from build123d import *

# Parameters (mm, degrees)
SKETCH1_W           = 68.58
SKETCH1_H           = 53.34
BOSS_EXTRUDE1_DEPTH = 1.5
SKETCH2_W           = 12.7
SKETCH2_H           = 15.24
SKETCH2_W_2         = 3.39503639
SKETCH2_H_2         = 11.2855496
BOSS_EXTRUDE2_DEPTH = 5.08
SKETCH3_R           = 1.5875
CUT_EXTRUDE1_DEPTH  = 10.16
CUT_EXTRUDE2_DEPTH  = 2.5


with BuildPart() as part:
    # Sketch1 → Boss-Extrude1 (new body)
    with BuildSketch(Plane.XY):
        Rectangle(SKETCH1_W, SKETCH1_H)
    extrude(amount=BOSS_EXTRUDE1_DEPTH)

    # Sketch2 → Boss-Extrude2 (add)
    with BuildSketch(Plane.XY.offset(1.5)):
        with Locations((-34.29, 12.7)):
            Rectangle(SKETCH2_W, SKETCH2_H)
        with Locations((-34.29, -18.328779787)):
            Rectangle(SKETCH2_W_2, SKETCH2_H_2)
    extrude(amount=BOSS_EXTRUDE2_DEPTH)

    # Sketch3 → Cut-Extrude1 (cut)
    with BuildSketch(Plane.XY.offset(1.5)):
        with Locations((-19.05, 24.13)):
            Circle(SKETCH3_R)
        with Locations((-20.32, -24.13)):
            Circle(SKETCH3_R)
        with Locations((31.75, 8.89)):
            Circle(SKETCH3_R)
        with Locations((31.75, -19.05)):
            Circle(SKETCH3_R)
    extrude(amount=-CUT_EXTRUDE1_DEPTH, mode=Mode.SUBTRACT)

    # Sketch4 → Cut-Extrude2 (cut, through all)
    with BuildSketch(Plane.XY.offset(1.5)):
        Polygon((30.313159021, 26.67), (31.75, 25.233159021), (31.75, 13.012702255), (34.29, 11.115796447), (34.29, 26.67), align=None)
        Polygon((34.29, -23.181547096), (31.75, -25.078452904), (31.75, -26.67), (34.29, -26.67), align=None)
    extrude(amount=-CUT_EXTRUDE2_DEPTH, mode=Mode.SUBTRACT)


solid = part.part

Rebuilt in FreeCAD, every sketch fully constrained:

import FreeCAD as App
import Part
import Sketcher
from FreeCAD import Vector
Q = App.Units.Quantity

doc = App.newDocument("Part")
params = doc.addObject("Spreadsheet::Sheet", "Params")
for row, (alias, value) in enumerate([
    ("sketch1_width", "2.7 in"),
    ("sketch1_height", "2.1 in"),
    ("pad1_length", "1.5 mm"),
    ("sketch2_width", "0.5 in"),
    ("sketch2_height", "0.6 in"),
    ("pad2_length", "0.2 in"),
    ("sketch3_diameter", "0.125 in"),
    ("pocket1_length", "0.4 in"),
    ("sketch4_width", "0.1 in"),
    ("sketch4_length", "0.08 in"),
], start=1):
    params.set(f"A{row}", alias)
    params.set(f"B{row}", "=" + value)
    params.setAlias(f"B{row}", alias)

body = doc.addObject("PartDesign::Body", "Body")

# Sketch on XY plane
sketch1 = body.newObject("Sketcher::SketchObject", "Sketch")
sketch1.AttachmentSupport = (doc.getObject("XY_Plane"), [""])
sketch1.MapMode = "FlatFace"
sketch1.addGeometry(Part.LineSegment(Vector(-34, 27, 0), Vector(-34, -27, 0)), False)
sketch1.addGeometry(Part.LineSegment(Vector(-34, -27, 0), Vector(34, -27, 0)), False)
sketch1.addGeometry(Part.LineSegment(Vector(34, -27, 0), Vector(34, 27, 0)), False)
sketch1.addGeometry(Part.LineSegment(Vector(34, 27, 0), Vector(-34, 27, 0)), False)
sketch1.addConstraint(Sketcher.Constraint("Coincident", 0, 2, 1, 1))
sketch1.addConstraint(Sketcher.Constraint("Coincident", 1, 2, 2, 1))
sketch1.addConstraint(Sketcher.Constraint("Coincident", 2, 2, 3, 1))
sketch1.addConstraint(Sketcher.Constraint("Coincident", 3, 2, 0, 1))
sketch1.addConstraint(Sketcher.Constraint("Vertical", 0))
sketch1.addConstraint(Sketcher.Constraint("Horizontal", 1))
sketch1.addConstraint(Sketcher.Constraint("Vertical", 2))
sketch1.addConstraint(Sketcher.Constraint("Horizontal", 3))
sketch1.addConstraint(Sketcher.Constraint("Symmetric", 0, 2, 2, 2, -1, 1))
sketch1.addConstraint(Sketcher.Constraint("DistanceX", 1, 1, 1, 2, Q("2.7 in")))
sketch1.addConstraint(Sketcher.Constraint("DistanceY", 0, 2, 0, 1, Q("2.1 in")))
sketch1.setExpression("Constraints[9]", "Params.sketch1_width")
sketch1.setExpression("Constraints[10]", "Params.sketch1_height")
pad1 = body.newObject("PartDesign::Pad", "Pad")
pad1.Profile = sketch1
pad1.setExpression("Length", "Params.pad1_length")

# Sketch on XY plane
sketch2 = body.newObject("Sketcher::SketchObject", "Sketch001")
sketch2.AttachmentSupport = (doc.getObject("XY_Plane"), [""])
sketch2.MapMode = "FlatFace"
sketch2.AttachmentOffset = App.Placement(Vector(0, 0, 1.5), App.Rotation())
sketch2.addGeometry(Part.LineSegment(Vector(-40.6, 20.3, 0), Vector(-40.6, 5.1, 0)), False)
sketch2.addGeometry(Part.LineSegment(Vector(-40.6, 5.1, 0), Vector(-27.9, 5.1, 0)), False)
sketch2.addGeometry(Part.LineSegment(Vector(-27.9, 5.1, 0), Vector(-27.9, 20.3, 0)), False)
sketch2.addGeometry(Part.LineSegment(Vector(-27.9, 20.3, 0), Vector(-40.6, 20.3, 0)), False)
sketch2.addGeometry(Part.LineSegment(Vector(-36, -12.7, 0), Vector(-36, -24, 0)), False)
sketch2.addGeometry(Part.LineSegment(Vector(-36, -24, 0), Vector(-32.6, -24, 0)), False)
sketch2.addGeometry(Part.LineSegment(Vector(-32.6, -24, 0), Vector(-32.6, -12.7, 0)), False)
sketch2.addGeometry(Part.LineSegment(Vector(-32.6, -12.7, 0), Vector(-36, -12.7, 0)), False)
sketch2.addConstraint(Sketcher.Constraint("Coincident", 0, 2, 1, 1))
sketch2.addConstraint(Sketcher.Constraint("Coincident", 1, 2, 2, 1))
sketch2.addConstraint(Sketcher.Constraint("Coincident", 2, 2, 3, 1))
sketch2.addConstraint(Sketcher.Constraint("Coincident", 3, 2, 0, 1))
sketch2.addConstraint(Sketcher.Constraint("Coincident", 4, 2, 5, 1))
sketch2.addConstraint(Sketcher.Constraint("Coincident", 5, 2, 6, 1))
sketch2.addConstraint(Sketcher.Constraint("Coincident", 6, 2, 7, 1))
sketch2.addConstraint(Sketcher.Constraint("Coincident", 7, 2, 4, 1))
sketch2.addConstraint(Sketcher.Constraint("Vertical", 0))
sketch2.addConstraint(Sketcher.Constraint("Horizontal", 1))
sketch2.addConstraint(Sketcher.Constraint("Vertical", 2))
sketch2.addConstraint(Sketcher.Constraint("Horizontal", 3))
sketch2.addConstraint(Sketcher.Constraint("Vertical", 4))
sketch2.addConstraint(Sketcher.Constraint("Horizontal", 5))
sketch2.addConstraint(Sketcher.Constraint("Vertical", 6))
sketch2.addConstraint(Sketcher.Constraint("Horizontal", 7))
sketch2.addConstraint(Sketcher.Constraint("DistanceX", 1, 1, 1, 2, Q("0.5 in")))
sketch2.addConstraint(Sketcher.Constraint("DistanceY", 0, 2, 0, 1, Q("0.6 in")))
sketch2.addConstraint(Sketcher.Constraint("DistanceX", 0, 2, -1, 1, Q("1.6 in")))
sketch2.addConstraint(Sketcher.Constraint("DistanceY", -1, 1, 0, 2, Q("0.2 in")))
sketch2.addConstraint(Sketcher.Constraint("DistanceY", 4, 2, 4, 1, 11.28555))
sketch2.addConstraint(Sketcher.Constraint("DistanceX", 5, 1, 5, 2, 3.395036))
sketch2.addConstraint(Sketcher.Constraint("DistanceX", 4, 2, -1, 1, 35.987518))
sketch2.addConstraint(Sketcher.Constraint("DistanceY", 4, 2, -1, 1, 23.971555))
sketch2.setExpression("Constraints[16]", "Params.sketch2_width")
sketch2.setExpression("Constraints[17]", "Params.sketch2_height")
pad2 = body.newObject("PartDesign::Pad", "Pad001")
pad2.Profile = sketch2
pad2.setExpression("Length", "Params.pad2_length")

# Sketch on XY plane
sketch3 = body.newObject("Sketcher::SketchObject", "Sketch002")
sketch3.AttachmentSupport = (doc.getObject("XY_Plane"), [""])
sketch3.MapMode = "FlatFace"
sketch3.AttachmentOffset = App.Placement(Vector(0, 0, 1.5), App.Rotation())
sketch3.addGeometry(Part.Circle(Vector(-19.1, 24.1, 0), Vector(0, 0, 1), 1.6), False)
sketch3.addGeometry(Part.Circle(Vector(-20.3, -24.1, 0), Vector(0, 0, 1), 1.6), False)
sketch3.addGeometry(Part.Circle(Vector(31.8, 8.9, 0), Vector(0, 0, 1), 1.6), False)
sketch3.addGeometry(Part.Circle(Vector(31.8, -19.1, 0), Vector(0, 0, 1), 1.6), False)
sketch3.addConstraint(Sketcher.Constraint("Equal", 0, 1))
sketch3.addConstraint(Sketcher.Constraint("Equal", 1, 2))
sketch3.addConstraint(Sketcher.Constraint("Equal", 2, 3))
sketch3.addConstraint(Sketcher.Constraint("Vertical", 2, 3, 3, 3))
sketch3.addConstraint(Sketcher.Constraint("Diameter", 0, Q("0.125 in")))
sketch3.addConstraint(Sketcher.Constraint("DistanceX", 0, 3, 2, 3, Q("2 in")))
sketch3.addConstraint(Sketcher.Constraint("DistanceX", 1, 3, -1, 1, Q("0.8 in")))
sketch3.addConstraint(Sketcher.Constraint("DistanceY", 1, 3, 0, 3, Q("1.9 in")))
sketch3.addConstraint(Sketcher.Constraint("DistanceY", 2, 3, 0, 3, Q("0.6 in")))
sketch3.addConstraint(Sketcher.Constraint("DistanceY", 3, 3, 2, 3, Q("1.1 in")))
sketch3.addConstraint(Sketcher.Constraint("DistanceX", 0, 3, -1, 1, Q("0.75 in")))
sketch3.addConstraint(Sketcher.Constraint("DistanceY", -1, 1, 0, 3, Q("0.95 in")))
sketch3.setExpression("Constraints[4]", "Params.sketch3_diameter")
pocket1 = body.newObject("PartDesign::Pocket", "Pocket")
pocket1.Profile = sketch3
pocket1.setExpression("Length", "Params.pocket1_length")

# Sketch on XY plane
sketch4 = body.newObject("Sketcher::SketchObject", "Sketch003")
sketch4.AttachmentSupport = (doc.getObject("XY_Plane"), [""])
sketch4.MapMode = "FlatFace"
sketch4.AttachmentOffset = App.Placement(Vector(0, 0, 1.5), App.Rotation())
sketch4.addGeometry(Part.LineSegment(Vector(30.3, 26.7, 0), Vector(31.8, 25.2, 0)), False)
sketch4.addGeometry(Part.LineSegment(Vector(31.8, 25.2, 0), Vector(31.8, 13, 0)), False)
sketch4.addGeometry(Part.LineSegment(Vector(31.8, 13, 0), Vector(34.3, 11.1, 0)), False)
sketch4.addGeometry(Part.LineSegment(Vector(34.3, 11.1, 0), Vector(34.3, 26.7, 0)), False)
sketch4.addGeometry(Part.LineSegment(Vector(34.3, 26.7, 0), Vector(30.3, 26.7, 0)), False)
sketch4.addGeometry(Part.LineSegment(Vector(34.3, -23.2, 0), Vector(31.8, -25.1, 0)), False)
sketch4.addGeometry(Part.LineSegment(Vector(31.8, -25.1, 0), Vector(31.8, -26.7, 0)), False)
sketch4.addGeometry(Part.LineSegment(Vector(31.8, -26.7, 0), Vector(34.3, -26.7, 0)), False)
sketch4.addGeometry(Part.LineSegment(Vector(34.3, -26.7, 0), Vector(34.3, -23.2, 0)), False)
sketch4.addConstraint(Sketcher.Constraint("Coincident", 0, 2, 1, 1))
sketch4.addConstraint(Sketcher.Constraint("Coincident", 1, 2, 2, 1))
sketch4.addConstraint(Sketcher.Constraint("Coincident", 2, 2, 3, 1))
sketch4.addConstraint(Sketcher.Constraint("Coincident", 3, 2, 4, 1))
sketch4.addConstraint(Sketcher.Constraint("Coincident", 4, 2, 0, 1))
sketch4.addConstraint(Sketcher.Constraint("Coincident", 5, 2, 6, 1))
sketch4.addConstraint(Sketcher.Constraint("Coincident", 6, 2, 7, 1))
sketch4.addConstraint(Sketcher.Constraint("Coincident", 7, 2, 8, 1))
sketch4.addConstraint(Sketcher.Constraint("Coincident", 8, 2, 5, 1))
sketch4.addConstraint(Sketcher.Constraint("Vertical", 1))
sketch4.addConstraint(Sketcher.Constraint("Vertical", 3))
sketch4.addConstraint(Sketcher.Constraint("Horizontal", 4))
sketch4.addConstraint(Sketcher.Constraint("Vertical", 6))
sketch4.addConstraint(Sketcher.Constraint("Horizontal", 7))
sketch4.addConstraint(Sketcher.Constraint("Vertical", 8))
sketch4.addConstraint(Sketcher.Constraint("Symmetric", 3, 2, 7, 2, -1))
sketch4.addConstraint(Sketcher.Constraint("Vertical", 1, 2, 5, 2))
sketch4.addConstraint(Sketcher.Constraint("Equal", 2, 5))
sketch4.addConstraint(Sketcher.Constraint("DistanceX", 7, 1, 7, 2, Q("0.1 in")))
sketch4.addConstraint(Sketcher.Constraint("Angle", 0, Q("-45 deg")))
sketch4.addConstraint(Sketcher.Constraint("DistanceY", 6, 2, 4, 2, Q("2.1 in")))
sketch4.addConstraint(Sketcher.Constraint("Distance", 0, Q("0.08 in")))
sketch4.addConstraint(Sketcher.Constraint("DistanceX", -1, 1, 0, 2, Q("1.25 in")))
sketch4.addConstraint(Sketcher.Constraint("Distance", 2, 3.17015))
sketch4.addConstraint(Sketcher.Constraint("DistanceY", 1, 2, 1, 1, 12.220457))
sketch4.addConstraint(Sketcher.Constraint("DistanceY", 6, 2, 6, 1, 1.591547))
sketch4.setExpression("Constraints[18]", "Params.sketch4_width")
sketch4.setExpression("Constraints[21]", "Params.sketch4_length")
pocket2 = body.newObject("PartDesign::Pocket", "Pocket001")
pocket2.Profile = sketch4
pocket2.Type = "ThroughAll"

doc.recompute()
